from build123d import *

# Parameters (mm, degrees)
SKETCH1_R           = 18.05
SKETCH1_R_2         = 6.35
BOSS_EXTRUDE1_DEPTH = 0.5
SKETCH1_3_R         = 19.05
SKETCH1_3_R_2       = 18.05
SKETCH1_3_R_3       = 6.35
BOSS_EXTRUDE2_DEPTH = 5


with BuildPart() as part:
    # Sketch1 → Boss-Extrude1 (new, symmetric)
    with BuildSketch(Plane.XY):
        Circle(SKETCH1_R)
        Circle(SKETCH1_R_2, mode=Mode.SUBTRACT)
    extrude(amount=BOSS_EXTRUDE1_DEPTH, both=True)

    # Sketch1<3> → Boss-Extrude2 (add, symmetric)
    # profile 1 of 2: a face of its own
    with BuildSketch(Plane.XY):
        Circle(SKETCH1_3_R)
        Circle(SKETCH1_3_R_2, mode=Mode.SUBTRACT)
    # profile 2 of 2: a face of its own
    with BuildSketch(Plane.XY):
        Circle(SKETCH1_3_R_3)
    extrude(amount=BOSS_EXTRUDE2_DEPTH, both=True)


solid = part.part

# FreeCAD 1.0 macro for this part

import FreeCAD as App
import Part
import Sketcher
Q = App.Units.Quantity

doc = App.newDocument("Part")
params = doc.addObject("Spreadsheet::Sheet", "Params")
for row, (alias, value) in enumerate([
    ("sketch1_diameter", "36.1 mm"),
    ("sketch1_diameter2", "12.7 mm"),
    ("pad1_length", "1 mm"),
    ("sketch2_diameter", "38.1 mm"),
    ("sketch2_diameter2", "36.1 mm"),
    ("sketch2_diameter3", "12.7 mm"),
    ("pad2_length", "10 mm"),
], start=1):
    params.set(f"A{row}", alias)
    params.set(f"B{row}", "=" + value)
    params.setAlias(f"B{row}", alias)

body = doc.addObject("PartDesign::Body", "Body")

sketch1 = doc.addObject("Sketcher::SketchObject", "Sketch")
body.addObject(sketch1)
sketch1.AttachmentSupport = (doc.XY_Plane, [""])
sketch1.MapMode = "FlatFace"
sketch1.addGeometry([
    Part.Circle(App.Vector(0, 0, 0), App.Vector(0, 0, 1), 18.05),
    Part.Circle(App.Vector(0, 0, 0), App.Vector(0, 0, 1), 6.35),
], False)
sketch1.addConstraint([
    Sketcher.Constraint("Coincident", 0, 3, -1, 1),
    Sketcher.Constraint("Coincident", 1, 3, -1, 1),
    Sketcher.Constraint("Diameter", 0, Q("36.1 mm")),
    Sketcher.Constraint("Diameter", 1, Q("12.7 mm")),
])
sketch1.setExpression("Constraints[2]", "Params.sketch1_diameter")
sketch1.setExpression("Constraints[3]", "Params.sketch1_diameter2")
pad1 = doc.addObject("PartDesign::Pad", "Pad")
body.addObject(pad1)
pad1.Profile = sketch1
pad1.setExpression("Length", "Params.pad1_length")
pad1.Midplane = True

sketch2 = doc.addObject("Sketcher::SketchObject", "Sketch001")
body.addObject(sketch2)
sketch2.AttachmentSupport = (doc.XY_Plane, [""])
sketch2.MapMode = "FlatFace"
sketch2.addGeometry([
    Part.Circle(App.Vector(0, 0, 0), App.Vector(0, 0, 1), 19.05),
    Part.Circle(App.Vector(0, 0, 0), App.Vector(0, 0, 1), 18.05),
    Part.Circle(App.Vector(0, 0, 0), App.Vector(0, 0, 1), 6.35),
], False)
sketch2.addConstraint([
    Sketcher.Constraint("Coincident", 0, 3, -1, 1),
    Sketcher.Constraint("Coincident", 1, 3, -1, 1),
    Sketcher.Constraint("Coincident", 2, 3, -1, 1),
    Sketcher.Constraint("Diameter", 0, Q("38.1 mm")),
    Sketcher.Constraint("Diameter", 1, Q("36.1 mm")),
    Sketcher.Constraint("Diameter", 2, Q("12.7 mm")),
])
sketch2.setExpression("Constraints[3]", "Params.sketch2_diameter")
sketch2.setExpression("Constraints[4]", "Params.sketch2_diameter2")
sketch2.setExpression("Constraints[5]", "Params.sketch2_diameter3")
pad2 = doc.addObject("PartDesign::Pad", "Pad001")
body.addObject(pad2)
pad2.Profile = sketch2
pad2.setExpression("Length", "Params.pad2_length")
pad2.Midplane = True

doc.recompute()
